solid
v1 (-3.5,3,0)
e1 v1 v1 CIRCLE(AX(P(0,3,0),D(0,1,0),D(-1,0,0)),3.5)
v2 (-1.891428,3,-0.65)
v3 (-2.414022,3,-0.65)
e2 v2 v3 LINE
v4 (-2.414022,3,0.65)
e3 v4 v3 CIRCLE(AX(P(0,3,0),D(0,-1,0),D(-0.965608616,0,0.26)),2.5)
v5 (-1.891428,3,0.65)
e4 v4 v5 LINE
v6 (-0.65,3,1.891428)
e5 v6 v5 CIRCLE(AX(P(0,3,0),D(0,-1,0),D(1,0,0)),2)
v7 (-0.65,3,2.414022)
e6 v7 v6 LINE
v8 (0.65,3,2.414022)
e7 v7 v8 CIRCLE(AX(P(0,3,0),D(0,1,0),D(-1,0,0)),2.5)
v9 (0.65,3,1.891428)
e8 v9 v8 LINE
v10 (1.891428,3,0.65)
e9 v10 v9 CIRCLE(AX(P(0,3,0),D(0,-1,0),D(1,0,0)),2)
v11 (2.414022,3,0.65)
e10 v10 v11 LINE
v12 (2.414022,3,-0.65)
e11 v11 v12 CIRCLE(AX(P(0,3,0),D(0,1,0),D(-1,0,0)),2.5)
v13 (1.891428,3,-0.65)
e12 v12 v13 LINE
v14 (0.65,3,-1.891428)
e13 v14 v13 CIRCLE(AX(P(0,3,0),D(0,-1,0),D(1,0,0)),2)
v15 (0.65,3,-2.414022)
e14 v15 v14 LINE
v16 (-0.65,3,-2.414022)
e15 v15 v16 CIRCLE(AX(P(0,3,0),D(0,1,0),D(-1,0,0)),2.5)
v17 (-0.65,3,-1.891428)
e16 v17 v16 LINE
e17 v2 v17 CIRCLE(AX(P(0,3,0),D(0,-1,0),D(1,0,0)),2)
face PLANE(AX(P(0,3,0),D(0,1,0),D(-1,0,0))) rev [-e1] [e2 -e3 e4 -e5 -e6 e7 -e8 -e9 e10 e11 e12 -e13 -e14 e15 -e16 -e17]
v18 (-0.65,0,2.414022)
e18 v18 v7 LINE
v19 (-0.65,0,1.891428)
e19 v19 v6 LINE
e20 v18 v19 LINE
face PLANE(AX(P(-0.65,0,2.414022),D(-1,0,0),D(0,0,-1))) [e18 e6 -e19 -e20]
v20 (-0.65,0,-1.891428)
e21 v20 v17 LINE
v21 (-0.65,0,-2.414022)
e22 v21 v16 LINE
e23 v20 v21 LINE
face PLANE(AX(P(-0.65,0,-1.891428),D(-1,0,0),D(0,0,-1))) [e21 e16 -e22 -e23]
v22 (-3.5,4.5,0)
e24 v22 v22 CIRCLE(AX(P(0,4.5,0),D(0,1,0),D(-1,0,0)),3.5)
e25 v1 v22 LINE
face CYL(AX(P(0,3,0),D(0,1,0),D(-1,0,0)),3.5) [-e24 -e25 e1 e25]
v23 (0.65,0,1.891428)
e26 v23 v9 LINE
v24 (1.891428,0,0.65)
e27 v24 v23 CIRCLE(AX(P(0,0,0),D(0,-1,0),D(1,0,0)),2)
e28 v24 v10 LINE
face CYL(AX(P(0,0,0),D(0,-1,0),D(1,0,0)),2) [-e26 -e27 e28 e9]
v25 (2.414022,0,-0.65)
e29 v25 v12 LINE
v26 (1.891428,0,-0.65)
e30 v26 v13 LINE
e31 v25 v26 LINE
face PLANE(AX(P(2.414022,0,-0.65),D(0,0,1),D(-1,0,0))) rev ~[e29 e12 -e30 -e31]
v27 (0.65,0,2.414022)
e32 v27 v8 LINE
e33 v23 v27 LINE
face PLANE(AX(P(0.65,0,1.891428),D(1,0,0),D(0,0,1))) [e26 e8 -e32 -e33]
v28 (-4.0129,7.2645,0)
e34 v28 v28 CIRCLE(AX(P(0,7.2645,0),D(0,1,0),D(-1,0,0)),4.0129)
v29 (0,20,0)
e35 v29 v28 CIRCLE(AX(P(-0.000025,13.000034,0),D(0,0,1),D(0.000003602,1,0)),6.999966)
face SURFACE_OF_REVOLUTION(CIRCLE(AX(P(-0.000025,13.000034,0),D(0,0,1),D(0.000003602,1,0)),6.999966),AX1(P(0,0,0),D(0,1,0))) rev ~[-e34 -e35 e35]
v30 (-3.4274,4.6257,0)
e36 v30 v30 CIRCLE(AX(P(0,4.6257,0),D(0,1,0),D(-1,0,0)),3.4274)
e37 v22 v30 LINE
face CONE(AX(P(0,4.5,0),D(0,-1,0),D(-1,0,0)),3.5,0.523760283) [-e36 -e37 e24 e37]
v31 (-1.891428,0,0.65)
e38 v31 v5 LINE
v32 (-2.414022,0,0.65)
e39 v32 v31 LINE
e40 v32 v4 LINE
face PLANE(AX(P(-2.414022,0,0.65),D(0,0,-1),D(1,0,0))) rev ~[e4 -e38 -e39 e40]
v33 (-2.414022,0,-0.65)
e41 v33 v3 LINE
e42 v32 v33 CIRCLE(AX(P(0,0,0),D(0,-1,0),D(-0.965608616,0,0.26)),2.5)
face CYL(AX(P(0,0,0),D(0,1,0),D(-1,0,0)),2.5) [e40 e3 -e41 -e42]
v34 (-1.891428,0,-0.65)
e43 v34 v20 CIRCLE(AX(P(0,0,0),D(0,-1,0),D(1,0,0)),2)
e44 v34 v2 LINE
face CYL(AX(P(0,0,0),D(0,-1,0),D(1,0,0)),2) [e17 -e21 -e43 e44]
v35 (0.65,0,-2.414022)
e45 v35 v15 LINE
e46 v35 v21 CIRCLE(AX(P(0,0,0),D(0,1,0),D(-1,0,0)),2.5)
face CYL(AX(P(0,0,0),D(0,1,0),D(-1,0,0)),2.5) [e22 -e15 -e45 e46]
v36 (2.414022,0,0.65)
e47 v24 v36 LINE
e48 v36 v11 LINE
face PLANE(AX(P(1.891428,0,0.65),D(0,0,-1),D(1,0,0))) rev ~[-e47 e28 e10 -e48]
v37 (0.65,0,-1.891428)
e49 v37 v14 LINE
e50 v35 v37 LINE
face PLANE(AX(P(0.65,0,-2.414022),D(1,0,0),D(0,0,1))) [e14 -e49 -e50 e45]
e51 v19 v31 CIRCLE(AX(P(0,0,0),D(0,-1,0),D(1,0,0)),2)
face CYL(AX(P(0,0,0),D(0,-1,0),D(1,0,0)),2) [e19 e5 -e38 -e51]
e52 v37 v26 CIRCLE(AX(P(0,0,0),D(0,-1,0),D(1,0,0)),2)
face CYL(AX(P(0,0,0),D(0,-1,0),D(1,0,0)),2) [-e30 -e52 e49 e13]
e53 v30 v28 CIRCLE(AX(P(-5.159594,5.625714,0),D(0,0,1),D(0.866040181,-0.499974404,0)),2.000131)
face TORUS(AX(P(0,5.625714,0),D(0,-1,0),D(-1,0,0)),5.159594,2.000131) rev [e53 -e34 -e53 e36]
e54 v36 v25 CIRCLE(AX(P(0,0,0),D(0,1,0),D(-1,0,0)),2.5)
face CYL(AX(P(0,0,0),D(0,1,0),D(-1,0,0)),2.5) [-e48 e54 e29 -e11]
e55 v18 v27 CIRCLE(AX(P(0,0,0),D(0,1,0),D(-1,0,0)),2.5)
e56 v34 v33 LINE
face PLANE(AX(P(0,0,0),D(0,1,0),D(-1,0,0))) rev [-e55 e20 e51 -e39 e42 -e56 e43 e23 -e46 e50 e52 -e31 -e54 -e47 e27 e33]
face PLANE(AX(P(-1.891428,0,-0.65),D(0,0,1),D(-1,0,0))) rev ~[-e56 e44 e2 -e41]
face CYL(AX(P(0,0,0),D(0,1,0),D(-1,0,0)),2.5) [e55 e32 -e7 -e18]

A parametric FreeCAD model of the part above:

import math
import FreeCAD as App
import Part
import Sketcher
from FreeCAD import Vector
Q = App.Units.Quantity

doc = App.newDocument("Part")
params = doc.addObject("Spreadsheet::Sheet", "Params")
for row, (alias, value) in enumerate([
    ("sketch1_radius", "7 mm"),
    ("sketch1_radius2", "2 mm"),
    ("sketch1_width", "1 mm"),
    ("sketch1_height", "20 mm"),
    ("sketch1_height2", "3 mm"),
    ("revolution_angle", "360 deg"),
    ("sketch2_radius", "2 mm"),
    ("sketch2_radius2", "2.5 mm"),
    ("pocket1_length", "3 mm"),
], start=1):
    params.set(f"A{row}", alias)
    params.set(f"B{row}", "=" + value)
    params.setAlias(f"B{row}", alias)

body = doc.addObject("PartDesign::Body", "Body")

# Sketch on XY plane
sketch1 = body.newObject("Sketcher::SketchObject", "Sketch")
sketch1.AttachmentSupport = (doc.getObject("XY_Plane"), [""])
sketch1.MapMode = "FlatFace"
sketch1.addGeometry(Part.LineSegment(Vector(-2.5, 0, 0), Vector(0, 0, 0)), False)
sketch1.addGeometry(Part.LineSegment(Vector(0, 0, 0), Vector(0, 20, 0)), False)
sketch1.addGeometry(Part.ArcOfCircle(Part.Circle(Vector(0, 13, 0), Vector(0, 0, 1), 7), math.radians(90), math.radians(235.021056)), False)
sketch1.addGeometry(Part.ArcOfCircle(Part.Circle(Vector(-5.1595, 5.6257, 0), Vector(0, 0, 1), 2.000043), math.radians(-29.999295), math.radians(55.021122)), False)
sketch1.addGeometry(Part.LineSegment(Vector(-3.4274, 4.6257, 0), Vector(-3.5, 4.5, 0)), False)
sketch1.addGeometry(Part.LineSegment(Vector(-3.5, 4.5, 0), Vector(-3.5, 3, 0)), False)
sketch1.addGeometry(Part.LineSegment(Vector(-3.5, 3, 0), Vector(-2.5, 3, 0)), False)
sketch1.addGeometry(Part.LineSegment(Vector(-2.5, 3, 0), Vector(-2.5, 0, 0)), False)
sketch1.addConstraint(Sketcher.Constraint("Coincident", 0, 2, 1, 1))
sketch1.addConstraint(Sketcher.Constraint("Coincident", 1, 2, 2, 1))
sketch1.addConstraint(Sketcher.Constraint("Tangent", 2, 2, 3, 2))
sketch1.addConstraint(Sketcher.Constraint("Tangent", 3, 1, 4, 1))
sketch1.addConstraint(Sketcher.Constraint("Coincident", 4, 2, 5, 1))
sketch1.addConstraint(Sketcher.Constraint("Coincident", 5, 2, 6, 1))
sketch1.addConstraint(Sketcher.Constraint("Coincident", 6, 2, 7, 1))
sketch1.addConstraint(Sketcher.Constraint("Coincident", 7, 2, 0, 1))
sketch1.addConstraint(Sketcher.Constraint("Horizontal", 0))
sketch1.addConstraint(Sketcher.Constraint("Vertical", 1))
sketch1.addConstraint(Sketcher.Constraint("Vertical", 5))
sketch1.addConstraint(Sketcher.Constraint("Horizontal", 6))
sketch1.addConstraint(Sketcher.Constraint("Vertical", 7))
sketch1.addConstraint(Sketcher.Constraint("Coincident", 0, 2, -1, 1))
sketch1.addConstraint(Sketcher.Constraint("PointOnObject", 2, 3, -2))
sketch1.addConstraint(Sketcher.Constraint("Radius", 2, Q("7 mm")))
sketch1.addConstraint(Sketcher.Constraint("Radius", 3, Q("2 mm")))
sketch1.addConstraint(Sketcher.Constraint("DistanceX", 6, 1, 6, 2, Q("1 mm")))
sketch1.addConstraint(Sketcher.Constraint("DistanceY", 1, 1, 1, 2, Q("20 mm")))
sketch1.addConstraint(Sketcher.Constraint("DistanceY", 7, 2, 7, 1, Q("3 mm")))
sketch1.addConstraint(Sketcher.Constraint("DistanceX", 0, 1, 0, 2, Q("2.5 mm")))
sketch1.addConstraint(Sketcher.Constraint("DistanceY", 5, 2, 5, 1, Q("1.5 mm")))
sketch1.addConstraint(Sketcher.Constraint("DistanceY", 3, 1, 3, 3, Q("1 mm")))
sketch1.setExpression("Constraints[15]", "Params.sketch1_radius")
sketch1.setExpression("Constraints[16]", "Params.sketch1_radius2")
sketch1.setExpression("Constraints[17]", "Params.sketch1_width")
sketch1.setExpression("Constraints[18]", "Params.sketch1_height")
sketch1.setExpression("Constraints[19]", "Params.sketch1_height2")
revolution = body.newObject("PartDesign::Revolution", "Revolution")
revolution.Profile = sketch1
revolution.ReferenceAxis = (sketch1, ["V_Axis"])
revolution.setExpression("Angle", "Params.revolution_angle")

# Sketch on XZ plane
sketch2 = body.newObject("Sketcher::SketchObject", "Sketch001")
sketch2.AttachmentSupport = (doc.getObject("XZ_Plane"), [""])
sketch2.MapMode = "FlatFace"
sketch2.addGeometry(Part.ArcOfCircle(Part.Circle(Vector(0, 0, 0), Vector(0, 0, 1), 2), math.radians(18.965575), math.radians(71.034425)), False)
sketch2.addGeometry(Part.LineSegment(Vector(1.891428, 0.65, 0), Vector(2.414022, 0.65, 0)), False)
sketch2.addGeometry(Part.ArcOfCircle(Part.Circle(Vector(0, 0, 0), Vector(0, 0, 1), 2.5), math.radians(15.070062), math.radians(74.929938)), False)
sketch2.addGeometry(Part.LineSegment(Vector(0.65, 2.414022, 0), Vector(0.65, 1.891428, 0)), False)
sketch2.addGeometry(Part.LineSegment(Vector(2.414022, -0.65, 0), Vector(1.891428, -0.65, 0)), False)
sketch2.addGeometry(Part.ArcOfCircle(Part.Circle(Vector(0, 0, 0), Vector(0, 0, 1), 2), math.radians(-71.034425), math.radians(-18.965575)), False)
sketch2.addGeometry(Part.LineSegment(Vector(0.65, -1.891428, 0), Vector(0.65, -2.414022, 0)), False)
sketch2.addGeometry(Part.ArcOfCircle(Part.Circle(Vector(0, 0, 0), Vector(0, 0, 1), 2.5), math.radians(-74.929938), math.radians(-15.070062)), False)
sketch2.addGeometry(Part.ArcOfCircle(Part.Circle(Vector(0, 0, 0), Vector(0, 0, 1), 2), math.radians(108.965575), math.radians(161.034425)), False)
sketch2.addGeometry(Part.LineSegment(Vector(-0.65, 1.891428, 0), Vector(-0.65, 2.414022, 0)), False)
sketch2.addGeometry(Part.ArcOfCircle(Part.Circle(Vector(0, 0, 0), Vector(0, 0, 1), 2.5), math.radians(105.070062), math.radians(164.929938)), False)
sketch2.addGeometry(Part.LineSegment(Vector(-2.414022, 0.65, 0), Vector(-1.891428, 0.65, 0)), False)
sketch2.addGeometry(Part.LineSegment(Vector(-0.65, -2.414022, 0), Vector(-0.65, -1.891428, 0)), False)
sketch2.addGeometry(Part.ArcOfCircle(Part.Circle(Vector(0, 0, 0), Vector(0, 0, 1), 2), math.radians(-161.034425), math.radians(-108.965575)), False)
sketch2.addGeometry(Part.LineSegment(Vector(-1.891428, -0.65, 0), Vector(-2.414022, -0.65, 0)), False)
sketch2.addGeometry(Part.ArcOfCircle(Part.Circle(Vector(0, 0, 0), Vector(0, 0, 1), 2.5), math.radians(-164.929938), math.radians(-105.070062)), False)
sketch2.addConstraint(Sketcher.Constraint("Coincident", 0, 1, 1, 1))
sketch2.addConstraint(Sketcher.Constraint("Coincident", 1, 2, 2, 1))
sketch2.addConstraint(Sketcher.Constraint("Coincident", 2, 2, 3, 1))
sketch2.addConstraint(Sketcher.Constraint("Coincident", 3, 2, 0, 2))
sketch2.addConstraint(Sketcher.Constraint("Coincident", 4, 2, 5, 2))
sketch2.addConstraint(Sketcher.Constraint("Coincident", 5, 1, 6, 1))
sketch2.addConstraint(Sketcher.Constraint("Coincident", 6, 2, 7, 1))
sketch2.addConstraint(Sketcher.Constraint("Coincident", 7, 2, 4, 1))
sketch2.addConstraint(Sketcher.Constraint("Coincident", 8, 1, 9, 1))
sketch2.addConstraint(Sketcher.Constraint("Coincident", 9, 2, 10, 1))
sketch2.addConstraint(Sketcher.Constraint("Coincident", 10, 2, 11, 1))
sketch2.addConstraint(Sketcher.Constraint("Coincident", 11, 2, 8, 2))
sketch2.addConstraint(Sketcher.Constraint("Coincident", 12, 2, 13, 2))
sketch2.addConstraint(Sketcher.Constraint("Coincident", 13, 1, 14, 1))
sketch2.addConstraint(Sketcher.Constraint("Coincident", 14, 2, 15, 1))
sketch2.addConstraint(Sketcher.Constraint("Coincident", 15, 2, 12, 1))
sketch2.addConstraint(Sketcher.Constraint("Horizontal", 1))
sketch2.addConstraint(Sketcher.Constraint("Vertical", 3))
sketch2.addConstraint(Sketcher.Constraint("Horizontal", 4))
sketch2.addConstraint(Sketcher.Constraint("Vertical", 6))
sketch2.addConstraint(Sketcher.Constraint("Vertical", 9))
sketch2.addConstraint(Sketcher.Constraint("Horizontal", 11))
sketch2.addConstraint(Sketcher.Constraint("Vertical", 12))
sketch2.addConstraint(Sketcher.Constraint("Horizontal", 14))
sketch2.addConstraint(Sketcher.Constraint("Coincident", 0, 3, -1, 1))
sketch2.addConstraint(Sketcher.Constraint("Coincident", 2, 3, -1, 1))
sketch2.addConstraint(Sketcher.Constraint("Coincident", 5, 3, -1, 1))
sketch2.addConstraint(Sketcher.Constraint("Coincident", 7, 3, -1, 1))
sketch2.addConstraint(Sketcher.Constraint("Coincident", 8, 3, -1, 1))
sketch2.addConstraint(Sketcher.Constraint("Coincident", 10, 3, -1, 1))
sketch2.addConstraint(Sketcher.Constraint("Coincident", 13, 3, -1, 1))
sketch2.addConstraint(Sketcher.Constraint("Coincident", 15, 3, -1, 1))
sketch2.addConstraint(Sketcher.Constraint("Equal", 0, 5))
sketch2.addConstraint(Sketcher.Constraint("Equal", 2, 7))
sketch2.addConstraint(Sketcher.Constraint("Equal", 5, 8))
sketch2.addConstraint(Sketcher.Constraint("Equal", 7, 10))
sketch2.addConstraint(Sketcher.Constraint("Equal", 8, 13))
sketch2.addConstraint(Sketcher.Constraint("Equal", 10, 15))
sketch2.addConstraint(Sketcher.Constraint("Horizontal", 3, 2, 8, 1))
sketch2.addConstraint(Sketcher.Constraint("Horizontal", 1, 2, 10, 2))
sketch2.addConstraint(Sketcher.Constraint("Horizontal", 5, 1, 12, 2))
sketch2.addConstraint(Sketcher.Constraint("Horizontal", 7, 2, 13, 1))
sketch2.addConstraint(Sketcher.Constraint("Vertical", 0, 1, 4, 2))
sketch2.addConstraint(Sketcher.Constraint("Vertical", 3, 2, 5, 1))
sketch2.addConstraint(Sketcher.Constraint("Equal", 14, 3))
sketch2.addConstraint(Sketcher.Constraint("Radius", 0, Q("2 mm")))
sketch2.addConstraint(Sketcher.Constraint("Radius", 2, Q("2.5 mm")))
sketch2.addConstraint(Sketcher.Constraint("DistanceY", 4, 2, 0, 1, Q("1.3 mm")))
sketch2.setExpression("Constraints[45]", "Params.sketch2_radius")
sketch2.setExpression("Constraints[46]", "Params.sketch2_radius2")
pocket1 = body.newObject("PartDesign::Pocket", "Pocket")
pocket1.Profile = sketch2
pocket1.setExpression("Length", "Params.pocket1_length")

doc.recompute()
